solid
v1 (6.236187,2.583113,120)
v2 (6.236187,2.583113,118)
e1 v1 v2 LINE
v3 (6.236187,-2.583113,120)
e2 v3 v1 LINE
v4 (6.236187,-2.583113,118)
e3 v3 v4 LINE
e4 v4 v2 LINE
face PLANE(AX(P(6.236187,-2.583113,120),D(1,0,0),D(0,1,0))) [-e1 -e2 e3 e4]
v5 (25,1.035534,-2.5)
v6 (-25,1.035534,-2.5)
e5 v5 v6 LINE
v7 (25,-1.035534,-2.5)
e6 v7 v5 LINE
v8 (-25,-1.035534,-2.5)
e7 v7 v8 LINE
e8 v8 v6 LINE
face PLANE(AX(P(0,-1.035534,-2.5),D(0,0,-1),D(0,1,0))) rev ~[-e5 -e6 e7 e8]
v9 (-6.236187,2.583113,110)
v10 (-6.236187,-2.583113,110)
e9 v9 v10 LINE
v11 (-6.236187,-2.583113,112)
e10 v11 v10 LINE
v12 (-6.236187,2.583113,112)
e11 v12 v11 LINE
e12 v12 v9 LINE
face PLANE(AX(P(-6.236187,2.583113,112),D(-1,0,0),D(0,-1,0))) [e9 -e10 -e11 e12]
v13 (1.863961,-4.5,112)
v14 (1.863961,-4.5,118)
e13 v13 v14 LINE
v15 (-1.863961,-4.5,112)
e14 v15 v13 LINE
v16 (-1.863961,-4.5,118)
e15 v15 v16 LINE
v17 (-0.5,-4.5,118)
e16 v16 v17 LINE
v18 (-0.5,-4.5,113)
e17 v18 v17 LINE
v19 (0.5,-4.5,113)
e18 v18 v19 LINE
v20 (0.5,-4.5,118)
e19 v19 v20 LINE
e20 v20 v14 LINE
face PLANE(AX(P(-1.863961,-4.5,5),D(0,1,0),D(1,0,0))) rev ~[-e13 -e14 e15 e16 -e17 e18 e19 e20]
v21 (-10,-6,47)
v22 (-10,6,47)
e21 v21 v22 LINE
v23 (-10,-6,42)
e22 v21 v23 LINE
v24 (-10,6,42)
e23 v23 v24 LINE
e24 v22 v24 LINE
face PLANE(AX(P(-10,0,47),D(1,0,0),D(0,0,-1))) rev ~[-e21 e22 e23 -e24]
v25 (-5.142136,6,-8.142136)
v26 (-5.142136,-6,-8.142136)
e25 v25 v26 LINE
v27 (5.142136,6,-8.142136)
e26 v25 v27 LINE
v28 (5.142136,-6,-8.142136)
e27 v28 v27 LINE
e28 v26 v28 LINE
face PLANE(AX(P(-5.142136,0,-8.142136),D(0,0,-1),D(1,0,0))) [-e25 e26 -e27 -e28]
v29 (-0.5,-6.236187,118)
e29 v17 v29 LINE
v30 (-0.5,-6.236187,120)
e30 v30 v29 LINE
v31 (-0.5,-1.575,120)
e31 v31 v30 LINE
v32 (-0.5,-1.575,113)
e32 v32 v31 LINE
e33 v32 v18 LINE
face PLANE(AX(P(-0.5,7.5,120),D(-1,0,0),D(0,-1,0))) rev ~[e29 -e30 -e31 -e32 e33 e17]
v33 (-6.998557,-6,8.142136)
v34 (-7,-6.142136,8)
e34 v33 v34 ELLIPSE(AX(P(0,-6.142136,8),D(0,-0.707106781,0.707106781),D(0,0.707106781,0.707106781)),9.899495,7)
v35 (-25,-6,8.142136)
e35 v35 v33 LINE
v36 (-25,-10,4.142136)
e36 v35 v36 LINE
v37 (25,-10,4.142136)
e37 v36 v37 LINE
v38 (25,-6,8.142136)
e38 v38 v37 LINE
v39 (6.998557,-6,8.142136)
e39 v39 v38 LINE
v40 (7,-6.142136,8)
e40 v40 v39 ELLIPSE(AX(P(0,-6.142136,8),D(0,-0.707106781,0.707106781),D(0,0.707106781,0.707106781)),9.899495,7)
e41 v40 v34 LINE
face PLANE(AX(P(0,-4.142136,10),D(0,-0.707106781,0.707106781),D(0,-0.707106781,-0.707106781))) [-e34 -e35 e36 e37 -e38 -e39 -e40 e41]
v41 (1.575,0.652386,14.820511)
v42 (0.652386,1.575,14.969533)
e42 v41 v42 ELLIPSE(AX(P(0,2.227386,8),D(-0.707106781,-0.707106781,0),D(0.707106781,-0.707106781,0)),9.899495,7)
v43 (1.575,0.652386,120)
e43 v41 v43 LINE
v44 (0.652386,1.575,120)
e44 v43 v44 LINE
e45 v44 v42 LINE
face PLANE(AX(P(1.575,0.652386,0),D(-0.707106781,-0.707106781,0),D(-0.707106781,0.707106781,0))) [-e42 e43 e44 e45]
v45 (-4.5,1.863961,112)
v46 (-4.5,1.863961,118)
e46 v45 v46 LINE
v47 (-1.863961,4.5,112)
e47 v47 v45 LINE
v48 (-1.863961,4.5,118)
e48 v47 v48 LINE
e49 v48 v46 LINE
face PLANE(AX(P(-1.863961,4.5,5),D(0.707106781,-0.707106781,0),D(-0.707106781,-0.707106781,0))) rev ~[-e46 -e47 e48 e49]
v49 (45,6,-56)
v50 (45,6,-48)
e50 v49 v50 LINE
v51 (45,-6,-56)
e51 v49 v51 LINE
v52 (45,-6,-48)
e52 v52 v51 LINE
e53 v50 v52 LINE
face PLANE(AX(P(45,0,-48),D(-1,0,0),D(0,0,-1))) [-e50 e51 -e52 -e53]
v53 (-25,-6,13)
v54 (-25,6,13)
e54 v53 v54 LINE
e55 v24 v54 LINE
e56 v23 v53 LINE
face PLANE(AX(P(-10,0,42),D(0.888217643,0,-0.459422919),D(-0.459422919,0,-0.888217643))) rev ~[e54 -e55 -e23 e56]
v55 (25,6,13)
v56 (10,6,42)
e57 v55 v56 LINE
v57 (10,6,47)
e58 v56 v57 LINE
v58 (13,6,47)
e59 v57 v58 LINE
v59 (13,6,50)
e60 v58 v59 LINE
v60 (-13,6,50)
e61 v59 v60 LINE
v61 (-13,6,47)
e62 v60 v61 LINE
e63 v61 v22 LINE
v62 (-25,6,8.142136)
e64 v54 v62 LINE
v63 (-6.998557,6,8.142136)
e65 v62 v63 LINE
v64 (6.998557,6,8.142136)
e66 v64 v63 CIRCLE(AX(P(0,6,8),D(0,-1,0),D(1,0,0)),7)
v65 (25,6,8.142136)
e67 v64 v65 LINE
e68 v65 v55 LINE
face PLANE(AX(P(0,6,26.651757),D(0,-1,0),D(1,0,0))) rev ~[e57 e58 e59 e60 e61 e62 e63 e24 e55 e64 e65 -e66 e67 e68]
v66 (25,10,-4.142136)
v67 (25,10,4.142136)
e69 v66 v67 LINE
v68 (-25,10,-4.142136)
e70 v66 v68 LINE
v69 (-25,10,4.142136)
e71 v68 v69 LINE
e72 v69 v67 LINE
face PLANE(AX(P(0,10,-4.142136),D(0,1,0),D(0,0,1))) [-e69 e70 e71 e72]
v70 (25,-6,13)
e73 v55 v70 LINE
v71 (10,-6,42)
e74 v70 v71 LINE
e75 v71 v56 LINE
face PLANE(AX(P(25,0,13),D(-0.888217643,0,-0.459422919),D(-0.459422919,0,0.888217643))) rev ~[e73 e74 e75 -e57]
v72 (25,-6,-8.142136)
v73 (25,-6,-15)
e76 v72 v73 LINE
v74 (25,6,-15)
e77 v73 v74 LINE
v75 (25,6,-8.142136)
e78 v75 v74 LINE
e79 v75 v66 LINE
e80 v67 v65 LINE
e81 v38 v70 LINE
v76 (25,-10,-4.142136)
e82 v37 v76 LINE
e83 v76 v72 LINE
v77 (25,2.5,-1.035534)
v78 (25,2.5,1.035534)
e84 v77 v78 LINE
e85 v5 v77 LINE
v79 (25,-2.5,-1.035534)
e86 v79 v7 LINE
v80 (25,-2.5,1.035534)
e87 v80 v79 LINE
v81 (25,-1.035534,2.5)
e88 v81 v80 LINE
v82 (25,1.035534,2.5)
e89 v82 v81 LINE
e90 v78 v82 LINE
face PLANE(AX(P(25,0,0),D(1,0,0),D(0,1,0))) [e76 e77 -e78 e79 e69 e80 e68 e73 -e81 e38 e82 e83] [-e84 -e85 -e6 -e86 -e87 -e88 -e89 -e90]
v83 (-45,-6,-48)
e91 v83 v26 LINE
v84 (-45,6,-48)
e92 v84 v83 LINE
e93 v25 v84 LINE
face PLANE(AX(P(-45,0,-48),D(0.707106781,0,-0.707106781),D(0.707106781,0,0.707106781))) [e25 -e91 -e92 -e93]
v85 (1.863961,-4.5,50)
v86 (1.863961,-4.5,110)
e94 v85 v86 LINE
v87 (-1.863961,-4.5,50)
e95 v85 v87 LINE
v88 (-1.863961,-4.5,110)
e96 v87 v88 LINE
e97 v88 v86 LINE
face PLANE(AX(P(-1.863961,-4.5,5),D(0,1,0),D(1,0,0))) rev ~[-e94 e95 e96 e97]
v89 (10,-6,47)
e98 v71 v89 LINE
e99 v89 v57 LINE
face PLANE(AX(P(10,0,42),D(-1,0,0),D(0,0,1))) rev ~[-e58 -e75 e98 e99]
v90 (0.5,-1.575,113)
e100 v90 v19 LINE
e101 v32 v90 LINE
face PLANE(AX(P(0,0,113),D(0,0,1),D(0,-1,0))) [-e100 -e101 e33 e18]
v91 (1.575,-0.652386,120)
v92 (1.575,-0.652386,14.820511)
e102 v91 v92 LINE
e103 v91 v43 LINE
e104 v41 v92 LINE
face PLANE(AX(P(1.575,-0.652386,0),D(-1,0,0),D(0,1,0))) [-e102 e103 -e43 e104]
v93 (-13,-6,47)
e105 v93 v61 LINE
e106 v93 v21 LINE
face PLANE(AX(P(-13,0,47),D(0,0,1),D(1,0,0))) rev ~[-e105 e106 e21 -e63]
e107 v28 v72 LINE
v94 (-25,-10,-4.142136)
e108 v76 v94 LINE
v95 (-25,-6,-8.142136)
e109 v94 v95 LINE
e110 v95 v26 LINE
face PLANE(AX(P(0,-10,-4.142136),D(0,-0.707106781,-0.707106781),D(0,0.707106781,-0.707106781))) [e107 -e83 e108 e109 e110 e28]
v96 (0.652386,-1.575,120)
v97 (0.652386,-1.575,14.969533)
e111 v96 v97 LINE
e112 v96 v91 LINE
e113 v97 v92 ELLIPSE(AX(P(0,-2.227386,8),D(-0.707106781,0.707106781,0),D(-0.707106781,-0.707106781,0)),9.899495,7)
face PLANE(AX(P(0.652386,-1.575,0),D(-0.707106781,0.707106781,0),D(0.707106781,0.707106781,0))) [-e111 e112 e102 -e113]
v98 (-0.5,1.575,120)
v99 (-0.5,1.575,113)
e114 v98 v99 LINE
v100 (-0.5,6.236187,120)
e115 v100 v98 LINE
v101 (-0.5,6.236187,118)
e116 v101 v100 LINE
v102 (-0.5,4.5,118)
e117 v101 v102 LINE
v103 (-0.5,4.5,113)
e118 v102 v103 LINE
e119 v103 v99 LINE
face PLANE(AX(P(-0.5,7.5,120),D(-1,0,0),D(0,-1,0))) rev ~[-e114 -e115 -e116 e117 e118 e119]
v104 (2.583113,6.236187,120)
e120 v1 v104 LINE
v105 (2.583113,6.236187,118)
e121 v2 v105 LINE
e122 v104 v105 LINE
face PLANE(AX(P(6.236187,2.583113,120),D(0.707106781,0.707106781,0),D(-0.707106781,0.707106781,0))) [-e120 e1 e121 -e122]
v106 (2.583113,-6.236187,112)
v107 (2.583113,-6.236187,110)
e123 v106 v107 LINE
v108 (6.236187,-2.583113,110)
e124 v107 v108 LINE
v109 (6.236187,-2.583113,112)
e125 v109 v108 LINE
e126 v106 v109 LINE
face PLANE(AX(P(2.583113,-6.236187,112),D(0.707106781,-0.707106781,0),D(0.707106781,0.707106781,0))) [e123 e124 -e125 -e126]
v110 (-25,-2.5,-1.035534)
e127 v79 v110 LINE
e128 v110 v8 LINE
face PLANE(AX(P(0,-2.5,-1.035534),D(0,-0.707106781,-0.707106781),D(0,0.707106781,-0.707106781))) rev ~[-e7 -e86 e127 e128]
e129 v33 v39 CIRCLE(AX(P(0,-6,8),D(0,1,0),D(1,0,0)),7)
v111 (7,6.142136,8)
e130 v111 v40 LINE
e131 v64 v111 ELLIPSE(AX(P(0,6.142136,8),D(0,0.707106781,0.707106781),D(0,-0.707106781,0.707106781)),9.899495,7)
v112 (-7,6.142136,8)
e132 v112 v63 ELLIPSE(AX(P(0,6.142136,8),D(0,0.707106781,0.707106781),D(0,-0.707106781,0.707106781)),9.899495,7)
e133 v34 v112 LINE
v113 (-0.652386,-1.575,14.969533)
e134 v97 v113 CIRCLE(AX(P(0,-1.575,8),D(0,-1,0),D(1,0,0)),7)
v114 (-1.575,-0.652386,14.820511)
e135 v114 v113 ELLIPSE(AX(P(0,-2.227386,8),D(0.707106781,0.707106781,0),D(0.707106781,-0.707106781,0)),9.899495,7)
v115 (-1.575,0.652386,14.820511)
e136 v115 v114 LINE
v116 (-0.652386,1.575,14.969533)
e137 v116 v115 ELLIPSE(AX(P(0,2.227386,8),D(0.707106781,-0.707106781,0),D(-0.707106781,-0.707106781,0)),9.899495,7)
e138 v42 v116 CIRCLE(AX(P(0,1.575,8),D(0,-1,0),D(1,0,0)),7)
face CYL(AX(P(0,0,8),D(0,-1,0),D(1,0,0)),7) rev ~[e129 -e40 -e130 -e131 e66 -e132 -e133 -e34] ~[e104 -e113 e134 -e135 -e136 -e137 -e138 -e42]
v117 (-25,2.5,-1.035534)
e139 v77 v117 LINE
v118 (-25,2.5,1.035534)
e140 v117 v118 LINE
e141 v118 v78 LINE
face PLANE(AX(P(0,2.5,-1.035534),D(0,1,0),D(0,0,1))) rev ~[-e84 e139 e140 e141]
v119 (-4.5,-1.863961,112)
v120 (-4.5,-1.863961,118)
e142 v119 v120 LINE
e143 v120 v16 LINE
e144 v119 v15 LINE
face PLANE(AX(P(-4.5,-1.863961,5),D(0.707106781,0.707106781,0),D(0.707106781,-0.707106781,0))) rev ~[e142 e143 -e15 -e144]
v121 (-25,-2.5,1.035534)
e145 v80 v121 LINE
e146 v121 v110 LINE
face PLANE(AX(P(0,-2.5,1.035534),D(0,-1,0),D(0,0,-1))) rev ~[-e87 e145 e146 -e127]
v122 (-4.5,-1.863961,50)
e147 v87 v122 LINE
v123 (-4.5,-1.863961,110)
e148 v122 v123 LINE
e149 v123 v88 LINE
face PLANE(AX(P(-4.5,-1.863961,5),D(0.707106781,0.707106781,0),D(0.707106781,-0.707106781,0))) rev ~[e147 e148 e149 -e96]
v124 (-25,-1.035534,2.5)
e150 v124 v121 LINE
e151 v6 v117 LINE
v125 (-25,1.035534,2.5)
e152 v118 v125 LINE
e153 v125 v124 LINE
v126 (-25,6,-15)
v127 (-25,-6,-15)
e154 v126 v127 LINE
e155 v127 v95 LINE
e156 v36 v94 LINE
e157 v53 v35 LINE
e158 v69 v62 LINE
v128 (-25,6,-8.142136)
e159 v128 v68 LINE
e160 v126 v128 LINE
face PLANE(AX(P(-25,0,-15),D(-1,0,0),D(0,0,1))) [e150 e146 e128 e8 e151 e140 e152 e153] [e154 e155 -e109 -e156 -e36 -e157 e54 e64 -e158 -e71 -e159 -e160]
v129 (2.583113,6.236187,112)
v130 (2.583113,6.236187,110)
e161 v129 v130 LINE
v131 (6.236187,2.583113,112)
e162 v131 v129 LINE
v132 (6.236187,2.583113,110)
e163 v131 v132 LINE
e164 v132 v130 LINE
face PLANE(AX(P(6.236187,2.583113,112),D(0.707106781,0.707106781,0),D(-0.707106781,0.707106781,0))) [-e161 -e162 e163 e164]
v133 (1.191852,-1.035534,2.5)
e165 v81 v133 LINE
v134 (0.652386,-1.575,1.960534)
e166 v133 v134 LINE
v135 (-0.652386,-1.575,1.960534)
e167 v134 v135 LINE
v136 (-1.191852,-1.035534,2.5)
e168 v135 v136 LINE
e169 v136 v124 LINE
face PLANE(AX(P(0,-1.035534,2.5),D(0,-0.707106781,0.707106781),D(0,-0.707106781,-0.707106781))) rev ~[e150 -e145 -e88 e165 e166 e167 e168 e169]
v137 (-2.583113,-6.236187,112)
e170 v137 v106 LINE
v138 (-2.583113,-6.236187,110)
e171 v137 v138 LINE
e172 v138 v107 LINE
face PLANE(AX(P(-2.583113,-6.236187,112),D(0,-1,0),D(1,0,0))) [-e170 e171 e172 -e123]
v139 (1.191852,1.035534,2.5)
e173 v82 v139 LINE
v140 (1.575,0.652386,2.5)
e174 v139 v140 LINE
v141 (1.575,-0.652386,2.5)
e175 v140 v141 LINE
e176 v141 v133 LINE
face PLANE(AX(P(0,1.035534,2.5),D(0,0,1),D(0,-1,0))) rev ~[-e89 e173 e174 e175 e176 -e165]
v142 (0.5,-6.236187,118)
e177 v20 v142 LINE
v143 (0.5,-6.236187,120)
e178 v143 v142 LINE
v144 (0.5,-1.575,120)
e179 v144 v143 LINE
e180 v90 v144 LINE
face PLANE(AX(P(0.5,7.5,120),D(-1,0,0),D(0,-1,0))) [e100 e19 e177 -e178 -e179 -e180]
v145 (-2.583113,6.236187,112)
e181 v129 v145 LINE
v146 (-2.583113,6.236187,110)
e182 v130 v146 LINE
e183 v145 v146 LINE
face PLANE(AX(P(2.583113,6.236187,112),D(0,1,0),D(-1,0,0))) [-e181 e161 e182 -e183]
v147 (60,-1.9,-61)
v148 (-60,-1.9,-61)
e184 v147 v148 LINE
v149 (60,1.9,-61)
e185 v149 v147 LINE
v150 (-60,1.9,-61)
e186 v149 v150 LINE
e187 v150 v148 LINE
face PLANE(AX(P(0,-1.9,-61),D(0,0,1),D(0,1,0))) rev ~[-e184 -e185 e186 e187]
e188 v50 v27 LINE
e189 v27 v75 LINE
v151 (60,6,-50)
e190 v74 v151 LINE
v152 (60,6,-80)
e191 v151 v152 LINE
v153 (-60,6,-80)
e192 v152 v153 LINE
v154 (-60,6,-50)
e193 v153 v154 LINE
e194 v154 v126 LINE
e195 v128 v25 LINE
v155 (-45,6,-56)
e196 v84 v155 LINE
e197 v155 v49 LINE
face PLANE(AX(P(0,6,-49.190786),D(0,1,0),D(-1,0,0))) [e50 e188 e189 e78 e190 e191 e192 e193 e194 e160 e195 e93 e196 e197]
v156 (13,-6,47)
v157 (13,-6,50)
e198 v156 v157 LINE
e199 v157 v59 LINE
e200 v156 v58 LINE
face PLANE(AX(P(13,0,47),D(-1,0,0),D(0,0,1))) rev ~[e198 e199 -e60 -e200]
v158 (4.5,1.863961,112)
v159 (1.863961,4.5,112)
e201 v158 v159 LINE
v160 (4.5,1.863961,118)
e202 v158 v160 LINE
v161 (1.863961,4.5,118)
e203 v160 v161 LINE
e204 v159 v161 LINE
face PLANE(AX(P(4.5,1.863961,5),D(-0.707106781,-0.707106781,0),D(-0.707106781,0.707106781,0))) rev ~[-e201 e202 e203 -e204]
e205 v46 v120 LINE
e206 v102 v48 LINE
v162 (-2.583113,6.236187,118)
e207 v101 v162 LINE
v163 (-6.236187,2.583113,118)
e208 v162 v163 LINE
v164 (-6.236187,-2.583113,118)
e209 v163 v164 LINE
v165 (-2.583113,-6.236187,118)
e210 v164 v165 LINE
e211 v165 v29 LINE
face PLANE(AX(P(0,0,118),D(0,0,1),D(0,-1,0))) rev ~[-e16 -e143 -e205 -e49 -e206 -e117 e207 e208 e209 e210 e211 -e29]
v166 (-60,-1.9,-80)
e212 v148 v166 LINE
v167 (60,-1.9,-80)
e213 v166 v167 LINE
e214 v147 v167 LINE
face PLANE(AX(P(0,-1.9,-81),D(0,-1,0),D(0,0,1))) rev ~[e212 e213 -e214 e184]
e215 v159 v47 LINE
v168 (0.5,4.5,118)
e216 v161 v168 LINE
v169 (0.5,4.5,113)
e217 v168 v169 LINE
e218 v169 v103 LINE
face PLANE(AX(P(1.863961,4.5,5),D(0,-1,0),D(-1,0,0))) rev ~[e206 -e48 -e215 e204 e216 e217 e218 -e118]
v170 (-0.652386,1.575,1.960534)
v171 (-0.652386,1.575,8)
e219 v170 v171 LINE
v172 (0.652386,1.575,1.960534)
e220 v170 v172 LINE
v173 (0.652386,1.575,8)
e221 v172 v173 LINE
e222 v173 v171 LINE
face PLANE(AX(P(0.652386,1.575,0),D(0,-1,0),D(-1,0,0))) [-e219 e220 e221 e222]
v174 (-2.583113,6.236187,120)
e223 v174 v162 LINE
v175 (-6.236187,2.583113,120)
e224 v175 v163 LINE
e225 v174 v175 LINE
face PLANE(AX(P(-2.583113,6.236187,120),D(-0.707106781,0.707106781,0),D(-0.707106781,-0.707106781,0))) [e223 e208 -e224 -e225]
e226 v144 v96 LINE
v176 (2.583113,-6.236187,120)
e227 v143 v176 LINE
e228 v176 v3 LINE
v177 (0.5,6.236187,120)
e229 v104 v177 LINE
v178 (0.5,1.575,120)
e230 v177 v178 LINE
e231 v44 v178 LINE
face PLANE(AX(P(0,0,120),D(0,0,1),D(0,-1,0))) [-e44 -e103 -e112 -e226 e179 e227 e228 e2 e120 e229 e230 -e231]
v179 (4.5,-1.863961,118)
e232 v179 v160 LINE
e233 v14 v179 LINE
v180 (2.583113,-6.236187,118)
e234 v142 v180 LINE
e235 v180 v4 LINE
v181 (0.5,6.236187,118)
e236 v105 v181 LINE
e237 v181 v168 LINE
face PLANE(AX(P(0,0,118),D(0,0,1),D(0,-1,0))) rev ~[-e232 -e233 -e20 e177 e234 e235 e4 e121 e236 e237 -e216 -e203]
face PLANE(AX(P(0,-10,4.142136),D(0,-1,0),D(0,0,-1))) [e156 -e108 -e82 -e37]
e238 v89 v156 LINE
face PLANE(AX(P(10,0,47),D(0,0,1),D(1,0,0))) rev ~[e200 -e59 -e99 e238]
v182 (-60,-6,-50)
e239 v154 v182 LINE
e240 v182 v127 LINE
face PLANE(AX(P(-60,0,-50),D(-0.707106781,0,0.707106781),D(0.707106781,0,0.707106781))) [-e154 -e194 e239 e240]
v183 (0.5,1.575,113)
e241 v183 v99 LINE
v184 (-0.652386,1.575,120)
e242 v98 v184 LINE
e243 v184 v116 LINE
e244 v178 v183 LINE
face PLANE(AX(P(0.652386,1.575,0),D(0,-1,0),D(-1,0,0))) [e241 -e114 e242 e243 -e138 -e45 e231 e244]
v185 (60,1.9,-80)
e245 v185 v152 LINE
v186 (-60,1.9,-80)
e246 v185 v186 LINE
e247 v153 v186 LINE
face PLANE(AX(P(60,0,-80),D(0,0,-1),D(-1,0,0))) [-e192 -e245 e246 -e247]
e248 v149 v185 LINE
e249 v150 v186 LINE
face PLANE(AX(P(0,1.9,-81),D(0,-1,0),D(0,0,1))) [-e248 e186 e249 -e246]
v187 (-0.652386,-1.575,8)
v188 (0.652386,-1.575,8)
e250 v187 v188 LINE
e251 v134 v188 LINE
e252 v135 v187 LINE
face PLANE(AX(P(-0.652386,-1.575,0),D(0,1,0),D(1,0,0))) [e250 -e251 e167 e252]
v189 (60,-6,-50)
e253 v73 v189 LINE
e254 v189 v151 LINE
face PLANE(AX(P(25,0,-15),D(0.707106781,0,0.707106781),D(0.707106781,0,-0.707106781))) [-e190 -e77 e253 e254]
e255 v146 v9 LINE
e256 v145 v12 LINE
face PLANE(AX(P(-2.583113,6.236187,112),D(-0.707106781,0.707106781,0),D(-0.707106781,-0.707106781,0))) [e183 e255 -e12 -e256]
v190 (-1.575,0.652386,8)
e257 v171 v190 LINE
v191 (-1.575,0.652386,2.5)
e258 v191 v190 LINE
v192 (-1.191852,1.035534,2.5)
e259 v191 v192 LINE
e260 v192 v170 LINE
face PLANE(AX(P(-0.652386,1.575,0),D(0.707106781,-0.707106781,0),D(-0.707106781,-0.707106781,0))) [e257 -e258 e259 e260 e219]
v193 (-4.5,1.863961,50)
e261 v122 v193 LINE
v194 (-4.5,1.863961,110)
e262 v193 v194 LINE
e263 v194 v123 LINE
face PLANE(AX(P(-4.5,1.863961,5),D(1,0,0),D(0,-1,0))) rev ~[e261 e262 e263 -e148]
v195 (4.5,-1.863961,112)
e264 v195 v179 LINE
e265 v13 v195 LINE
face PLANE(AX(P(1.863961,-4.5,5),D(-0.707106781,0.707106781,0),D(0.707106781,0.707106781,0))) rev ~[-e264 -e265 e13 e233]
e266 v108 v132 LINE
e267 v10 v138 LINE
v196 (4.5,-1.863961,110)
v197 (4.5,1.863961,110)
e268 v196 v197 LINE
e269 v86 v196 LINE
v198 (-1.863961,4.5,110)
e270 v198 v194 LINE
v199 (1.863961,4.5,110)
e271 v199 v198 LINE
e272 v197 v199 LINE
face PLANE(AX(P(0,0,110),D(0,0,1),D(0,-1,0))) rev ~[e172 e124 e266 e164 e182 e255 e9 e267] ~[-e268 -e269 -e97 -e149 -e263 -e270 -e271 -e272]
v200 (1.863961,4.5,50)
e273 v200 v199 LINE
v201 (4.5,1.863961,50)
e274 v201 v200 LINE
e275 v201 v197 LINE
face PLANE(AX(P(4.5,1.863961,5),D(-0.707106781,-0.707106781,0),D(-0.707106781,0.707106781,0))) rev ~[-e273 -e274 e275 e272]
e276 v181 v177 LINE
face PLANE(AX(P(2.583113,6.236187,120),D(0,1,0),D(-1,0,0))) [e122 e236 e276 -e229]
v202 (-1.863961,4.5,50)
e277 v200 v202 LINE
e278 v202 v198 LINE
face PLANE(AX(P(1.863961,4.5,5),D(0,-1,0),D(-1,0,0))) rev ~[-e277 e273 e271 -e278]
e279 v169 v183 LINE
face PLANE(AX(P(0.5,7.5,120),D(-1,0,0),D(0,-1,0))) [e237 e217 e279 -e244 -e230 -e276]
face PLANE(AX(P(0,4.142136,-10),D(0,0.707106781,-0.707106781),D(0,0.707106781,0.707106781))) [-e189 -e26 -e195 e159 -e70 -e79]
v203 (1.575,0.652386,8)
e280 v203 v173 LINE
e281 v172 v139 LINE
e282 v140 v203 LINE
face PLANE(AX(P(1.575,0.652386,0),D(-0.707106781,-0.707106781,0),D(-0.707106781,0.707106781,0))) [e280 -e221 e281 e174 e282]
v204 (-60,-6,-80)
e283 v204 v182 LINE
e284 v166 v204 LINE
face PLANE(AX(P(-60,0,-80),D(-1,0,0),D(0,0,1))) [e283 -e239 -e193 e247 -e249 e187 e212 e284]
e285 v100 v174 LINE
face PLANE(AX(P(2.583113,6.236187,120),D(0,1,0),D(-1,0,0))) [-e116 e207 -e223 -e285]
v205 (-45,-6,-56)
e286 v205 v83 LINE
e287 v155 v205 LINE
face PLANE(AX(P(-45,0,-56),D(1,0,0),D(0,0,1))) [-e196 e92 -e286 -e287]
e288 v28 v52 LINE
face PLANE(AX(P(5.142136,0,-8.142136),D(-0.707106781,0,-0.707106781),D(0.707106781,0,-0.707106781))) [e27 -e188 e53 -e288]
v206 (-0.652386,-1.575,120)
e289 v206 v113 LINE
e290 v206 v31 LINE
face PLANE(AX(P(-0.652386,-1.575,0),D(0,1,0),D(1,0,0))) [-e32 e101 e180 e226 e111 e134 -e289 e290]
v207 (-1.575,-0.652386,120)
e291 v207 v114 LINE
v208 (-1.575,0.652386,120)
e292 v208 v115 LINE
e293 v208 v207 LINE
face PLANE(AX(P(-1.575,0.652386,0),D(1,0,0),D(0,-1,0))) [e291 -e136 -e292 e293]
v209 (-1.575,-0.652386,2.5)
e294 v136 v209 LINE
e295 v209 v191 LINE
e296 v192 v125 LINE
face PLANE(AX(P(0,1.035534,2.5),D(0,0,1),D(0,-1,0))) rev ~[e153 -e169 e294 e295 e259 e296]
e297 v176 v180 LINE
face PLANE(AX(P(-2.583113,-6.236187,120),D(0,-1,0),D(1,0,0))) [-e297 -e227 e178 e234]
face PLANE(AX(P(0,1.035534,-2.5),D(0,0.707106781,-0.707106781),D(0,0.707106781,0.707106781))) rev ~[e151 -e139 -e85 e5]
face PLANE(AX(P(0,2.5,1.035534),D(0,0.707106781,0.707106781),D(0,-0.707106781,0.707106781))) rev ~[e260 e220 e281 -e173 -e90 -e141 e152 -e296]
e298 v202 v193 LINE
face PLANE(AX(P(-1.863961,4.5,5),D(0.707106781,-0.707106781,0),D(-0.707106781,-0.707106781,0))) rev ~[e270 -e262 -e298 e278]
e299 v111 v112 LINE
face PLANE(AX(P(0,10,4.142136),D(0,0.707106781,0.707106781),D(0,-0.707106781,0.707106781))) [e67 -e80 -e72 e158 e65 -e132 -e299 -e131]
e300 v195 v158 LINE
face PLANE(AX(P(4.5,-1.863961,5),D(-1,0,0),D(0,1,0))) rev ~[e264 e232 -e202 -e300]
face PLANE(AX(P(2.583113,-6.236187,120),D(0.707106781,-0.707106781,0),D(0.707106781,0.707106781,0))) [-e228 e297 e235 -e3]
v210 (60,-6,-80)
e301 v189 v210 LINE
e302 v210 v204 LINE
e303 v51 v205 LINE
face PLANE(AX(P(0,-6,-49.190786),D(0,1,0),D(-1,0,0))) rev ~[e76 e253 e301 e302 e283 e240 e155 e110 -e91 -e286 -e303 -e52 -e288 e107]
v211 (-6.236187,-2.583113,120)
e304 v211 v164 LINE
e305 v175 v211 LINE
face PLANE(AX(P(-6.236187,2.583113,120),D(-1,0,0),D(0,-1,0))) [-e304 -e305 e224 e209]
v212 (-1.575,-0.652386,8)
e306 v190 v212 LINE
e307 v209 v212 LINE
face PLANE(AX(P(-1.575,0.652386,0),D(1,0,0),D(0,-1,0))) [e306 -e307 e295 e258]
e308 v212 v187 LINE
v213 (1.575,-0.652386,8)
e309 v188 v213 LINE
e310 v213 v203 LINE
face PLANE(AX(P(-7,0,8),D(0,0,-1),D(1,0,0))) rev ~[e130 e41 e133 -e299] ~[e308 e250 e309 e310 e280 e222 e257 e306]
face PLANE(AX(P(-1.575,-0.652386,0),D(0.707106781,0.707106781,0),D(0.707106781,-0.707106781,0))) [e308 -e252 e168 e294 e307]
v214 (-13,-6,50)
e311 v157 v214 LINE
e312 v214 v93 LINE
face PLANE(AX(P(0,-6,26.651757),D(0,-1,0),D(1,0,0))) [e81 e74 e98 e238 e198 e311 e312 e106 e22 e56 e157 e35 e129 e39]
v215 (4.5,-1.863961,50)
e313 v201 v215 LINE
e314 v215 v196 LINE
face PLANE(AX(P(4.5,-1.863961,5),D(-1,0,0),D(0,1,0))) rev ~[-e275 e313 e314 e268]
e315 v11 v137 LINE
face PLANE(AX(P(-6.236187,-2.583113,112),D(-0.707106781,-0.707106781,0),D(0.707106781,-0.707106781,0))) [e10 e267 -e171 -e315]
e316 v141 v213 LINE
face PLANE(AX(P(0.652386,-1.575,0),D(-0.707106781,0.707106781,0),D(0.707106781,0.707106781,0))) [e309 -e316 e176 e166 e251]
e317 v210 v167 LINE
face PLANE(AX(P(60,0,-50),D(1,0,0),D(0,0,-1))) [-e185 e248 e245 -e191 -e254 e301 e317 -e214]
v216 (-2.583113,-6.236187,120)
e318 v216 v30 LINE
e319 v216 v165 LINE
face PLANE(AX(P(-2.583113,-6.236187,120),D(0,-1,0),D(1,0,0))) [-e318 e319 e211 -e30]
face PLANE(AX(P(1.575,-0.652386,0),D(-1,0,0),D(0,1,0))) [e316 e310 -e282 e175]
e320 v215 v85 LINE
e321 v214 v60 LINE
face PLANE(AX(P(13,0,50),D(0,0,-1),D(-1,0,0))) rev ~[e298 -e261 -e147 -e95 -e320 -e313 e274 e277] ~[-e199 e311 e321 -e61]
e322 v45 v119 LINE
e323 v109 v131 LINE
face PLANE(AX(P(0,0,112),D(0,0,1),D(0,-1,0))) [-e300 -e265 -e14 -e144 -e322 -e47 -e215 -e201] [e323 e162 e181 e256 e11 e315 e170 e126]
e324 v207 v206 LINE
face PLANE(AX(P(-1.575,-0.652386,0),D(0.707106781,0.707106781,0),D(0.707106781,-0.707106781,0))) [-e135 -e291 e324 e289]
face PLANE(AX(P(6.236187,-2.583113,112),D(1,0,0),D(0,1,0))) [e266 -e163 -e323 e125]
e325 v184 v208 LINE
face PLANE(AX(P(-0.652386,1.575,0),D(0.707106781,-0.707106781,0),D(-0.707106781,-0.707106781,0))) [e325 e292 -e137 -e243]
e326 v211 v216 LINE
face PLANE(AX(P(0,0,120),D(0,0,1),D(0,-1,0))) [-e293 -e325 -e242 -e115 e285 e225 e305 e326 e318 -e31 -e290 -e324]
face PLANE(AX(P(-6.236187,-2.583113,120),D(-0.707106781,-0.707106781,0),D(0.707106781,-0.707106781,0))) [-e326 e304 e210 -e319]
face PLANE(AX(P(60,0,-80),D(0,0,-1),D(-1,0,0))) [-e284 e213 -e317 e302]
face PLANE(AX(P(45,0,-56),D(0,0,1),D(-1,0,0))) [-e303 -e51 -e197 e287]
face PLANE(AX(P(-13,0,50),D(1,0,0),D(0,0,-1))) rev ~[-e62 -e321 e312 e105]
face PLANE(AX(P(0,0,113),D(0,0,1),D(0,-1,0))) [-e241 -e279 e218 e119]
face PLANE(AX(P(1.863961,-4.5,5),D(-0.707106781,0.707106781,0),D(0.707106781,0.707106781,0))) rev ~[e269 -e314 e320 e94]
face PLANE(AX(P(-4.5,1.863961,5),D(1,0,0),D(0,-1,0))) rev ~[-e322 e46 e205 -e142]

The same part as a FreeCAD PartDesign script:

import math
import FreeCAD as App
import Part
import Sketcher

V = App.Vector
Q = App.Units.Quantity

doc = App.newDocument("Part")
body = doc.addObject("PartDesign::Body", "Body")

# Sketch on YZ plane
sketch1 = body.newObject("Sketcher::SketchObject", "Sketch")
sketch1.AttachmentSupport = (doc.getObject("YZ_Plane"), [""])
sketch1.MapMode = "FlatFace"
sketch1.addGeometry([
    Part.LineSegment(V(10, -4.1, 0), V(10, 4.1, 0)),  # 0
    Part.LineSegment(V(10, 4.1, 0), V(4.1, 10, 0)),  # 1
    Part.LineSegment(V(4.1, 10, 0), V(-4.1, 10, 0)),  # 2
    Part.LineSegment(V(-4.1, 10, 0), V(-10, 4.1, 0)),  # 3
    Part.LineSegment(V(-10, 4.1, 0), V(-10, -4.1, 0)),  # 4
    Part.LineSegment(V(-10, -4.1, 0), V(-4.1, -10, 0)),  # 5
    Part.LineSegment(V(-4.1, -10, 0), V(4.1, -10, 0)),  # 6
    Part.LineSegment(V(4.1, -10, 0), V(10, -4.1, 0)),  # 7
    Part.LineSegment(V(1, 2.5, 0), V(2.5, 1, 0)),  # 8
    Part.LineSegment(V(2.5, 1, 0), V(2.5, -1, 0)),  # 9
    Part.LineSegment(V(2.5, -1, 0), V(1, -2.5, 0)),  # 10
    Part.LineSegment(V(1, -2.5, 0), V(-1, -2.5, 0)),  # 11
    Part.LineSegment(V(-1, -2.5, 0), V(-2.5, -1, 0)),  # 12
    Part.LineSegment(V(-2.5, -1, 0), V(-2.5, 1, 0)),  # 13
    Part.LineSegment(V(-2.5, 1, 0), V(-1, 2.5, 0)),  # 14
    Part.LineSegment(V(-1, 2.5, 0), V(1, 2.5, 0)),  # 15
], False)
sketch1.addConstraint([
    Sketcher.Constraint("Coincident", 0, 2, 1, 1),
    Sketcher.Constraint("Coincident", 1, 2, 2, 1),
    Sketcher.Constraint("Coincident", 2, 2, 3, 1),
    Sketcher.Constraint("Coincident", 3, 2, 4, 1),
    Sketcher.Constraint("Coincident", 4, 2, 5, 1),
    Sketcher.Constraint("Coincident", 5, 2, 6, 1),
    Sketcher.Constraint("Coincident", 6, 2, 7, 1),
    Sketcher.Constraint("Coincident", 7, 2, 0, 1),
    Sketcher.Constraint("Coincident", 8, 2, 9, 1),
    Sketcher.Constraint("Coincident", 9, 2, 10, 1),
    Sketcher.Constraint("Coincident", 10, 2, 11, 1),
    Sketcher.Constraint("Coincident", 11, 2, 12, 1),
    Sketcher.Constraint("Coincident", 12, 2, 13, 1),
    Sketcher.Constraint("Coincident", 13, 2, 14, 1),
    Sketcher.Constraint("Coincident", 14, 2, 15, 1),
    Sketcher.Constraint("Coincident", 15, 2, 8, 1),
    Sketcher.Constraint("Vertical", 0),
    Sketcher.Constraint("Horizontal", 2),
    Sketcher.Constraint("Vertical", 4),
    Sketcher.Constraint("Horizontal", 6),
    Sketcher.Constraint("Vertical", 9),
    Sketcher.Constraint("Horizontal", 11),
    Sketcher.Constraint("Vertical", 13),
    Sketcher.Constraint("Horizontal", 15),
    Sketcher.Constraint("Symmetric", 0, 2, 4, 2, -1, 1),
    Sketcher.Constraint("Symmetric", 1, 2, 5, 2, -1, 1),
    Sketcher.Constraint("Symmetric", 8, 2, 12, 2, -1, 1),
    Sketcher.Constraint("Symmetric", 10, 2, 14, 2, -1, 1),
    Sketcher.Constraint("Perpendicular", 1, 3),
    Sketcher.Constraint("Perpendicular", 5, 7),
    Sketcher.Constraint("Perpendicular", 7, 8),
    Sketcher.Constraint("Perpendicular", 8, 10),
    Sketcher.Constraint("Perpendicular", 10, 12),
    Sketcher.Constraint("Perpendicular", 12, 14),
    Sketcher.Constraint("Horizontal", 0, 2, 3, 2),
    Sketcher.Constraint("Horizontal", 4, 2, 7, 2),
    Sketcher.Constraint("Horizontal", 9, 2, 12, 2),
    Sketcher.Constraint("Vertical", 2, 2, 5, 2),
    Sketcher.Constraint("Equal", 6, 0),
    Sketcher.Constraint("Equal", 15, 9),
    Sketcher.Constraint("DistanceX", -1, 1, 0, 2, Q("10 mm")),
    Sketcher.Constraint("DistanceX", 12, 2, 9, 2, Q("5 mm")),
    Sketcher.Constraint("DistanceY", 8, 2, 0, 2, Q("3.106602 mm")),
    Sketcher.Constraint("Distance", 1, Q("8.284271 mm")),
])
pad1 = body.newObject("PartDesign::Pad", "Pad")
pad1.Profile = sketch1
pad1.Type = "TwoLengths"
pad1.Length = 25
pad1.Length2 = 25

# Sketch on XY plane
sketch2 = body.newObject("Sketcher::SketchObject", "Sketch001")
sketch2.AttachmentSupport = (doc.getObject("XY_Plane"), [""])
sketch2.MapMode = "FlatFace"
sketch2.AttachmentOffset = App.Placement(V(0, 0, 5), App.Rotation())
sketch2.addGeometry([
    Part.LineSegment(V(4.5, -1.9, 0), V(4.5, 1.9, 0)),  # 0
    Part.LineSegment(V(4.5, 1.9, 0), V(1.9, 4.5, 0)),  # 1
    Part.LineSegment(V(1.9, 4.5, 0), V(-1.9, 4.5, 0)),  # 2
    Part.LineSegment(V(-1.9, 4.5, 0), V(-4.5, 1.9, 0)),  # 3
    Part.LineSegment(V(-4.5, 1.9, 0), V(-4.5, -1.9, 0)),  # 4
    Part.LineSegment(V(-4.5, -1.9, 0), V(-1.9, -4.5, 0)),  # 5
    Part.LineSegment(V(-1.9, -4.5, 0), V(1.9, -4.5, 0)),  # 6
    Part.LineSegment(V(1.9, -4.5, 0), V(4.5, -1.9, 0)),  # 7
    Part.LineSegment(V(1.6, 0.7, 0), V(1.6, -0.7, 0)),  # 8
    Part.LineSegment(V(1.6, -0.7, 0), V(0.7, -1.6, 0)),  # 9
    Part.LineSegment(V(0.7, -1.6, 0), V(-0.7, -1.6, 0)),  # 10
    Part.LineSegment(V(-0.7, -1.6, 0), V(-1.6, -0.7, 0)),  # 11
    Part.LineSegment(V(-1.6, -0.7, 0), V(-1.6, 0.7, 0)),  # 12
    Part.LineSegment(V(-1.6, 0.7, 0), V(-0.7, 1.6, 0)),  # 13
    Part.LineSegment(V(-0.7, 1.6, 0), V(0.7, 1.6, 0)),  # 14
    Part.LineSegment(V(0.7, 1.6, 0), V(1.6, 0.7, 0)),  # 15
], False)
sketch2.addConstraint([
    Sketcher.Constraint("Coincident", 0, 2, 1, 1),
    Sketcher.Constraint("Coincident", 1, 2, 2, 1),
    Sketcher.Constraint("Coincident", 2, 2, 3, 1),
    Sketcher.Constraint("Coincident", 3, 2, 4, 1),
    Sketcher.Constraint("Coincident", 4, 2, 5, 1),
    Sketcher.Constraint("Coincident", 5, 2, 6, 1),
    Sketcher.Constraint("Coincident", 6, 2, 7, 1),
    Sketcher.Constraint("Coincident", 7, 2, 0, 1),
    Sketcher.Constraint("Coincident", 8, 2, 9, 1),
    Sketcher.Constraint("Coincident", 9, 2, 10, 1),
    Sketcher.Constraint("Coincident", 10, 2, 11, 1),
    Sketcher.Constraint("Coincident", 11, 2, 12, 1),
    Sketcher.Constraint("Coincident", 12, 2, 13, 1),
    Sketcher.Constraint("Coincident", 13, 2, 14, 1),
    Sketcher.Constraint("Coincident", 14, 2, 15, 1),
    Sketcher.Constraint("Coincident", 15, 2, 8, 1),
    Sketcher.Constraint("Vertical", 0),
    Sketcher.Constraint("Horizontal", 2),
    Sketcher.Constraint("Vertical", 4),
    Sketcher.Constraint("Horizontal", 6),
    Sketcher.Constraint("Vertical", 8),
    Sketcher.Constraint("Horizontal", 10),
    Sketcher.Constraint("Vertical", 12),
    Sketcher.Constraint("Horizontal", 14),
    Sketcher.Constraint("Symmetric", 0, 2, 4, 2, -1, 1),
    Sketcher.Constraint("Symmetric", 1, 2, 5, 2, -1, 1),
    Sketcher.Constraint("Symmetric", 8, 2, 12, 2, -1, 1),
    Sketcher.Constraint("Symmetric", 9, 2, 13, 2, -1, 1),
    Sketcher.Constraint("Perpendicular", 1, 3),
    Sketcher.Constraint("Perpendicular", 5, 7),
    Sketcher.Constraint("Parallel", 7, 9),
    Sketcher.Constraint("Perpendicular", 9, 11),
    Sketcher.Constraint("Perpendicular", 13, 15),
    Sketcher.Constraint("Horizontal", 0, 2, 3, 2),
    Sketcher.Constraint("Horizontal", 4, 2, 7, 2),
    Sketcher.Constraint("Horizontal", 8, 2, 11, 2),
    Sketcher.Constraint("Horizontal", 12, 2, 15, 2),
    Sketcher.Constraint("Vertical", 2, 2, 5, 2),
    Sketcher.Constraint("Equal", 6, 0),
    Sketcher.Constraint("Equal", 14, 8),
    Sketcher.Constraint("DistanceX", 3, 2, 0, 2, Q("9 mm")),
    Sketcher.Constraint("DistanceX", 11, 2, 8, 2, Q("3.15 mm")),
    Sketcher.Constraint("DistanceX", 2, 2, 2, 1, Q("3.727922 mm")),
    Sketcher.Constraint("DistanceX", 10, 2, 10, 1, Q("1.304772 mm")),
])
pad2 = body.newObject("PartDesign::Pad", "Pad001")
pad2.Profile = sketch2
pad2.Length = 115

# Sketch on XZ plane
sketch3 = body.newObject("Sketcher::SketchObject", "Sketch002")
sketch3.AttachmentSupport = (doc.getObject("XZ_Plane"), [""])
sketch3.MapMode = "FlatFace"
sketch3.addGeometry([
    Part.LineSegment(V(-25, 8, 0), V(25, 8, 0)),  # 0
    Part.LineSegment(V(25, 8, 0), V(25, 13, 0)),  # 1
    Part.LineSegment(V(25, 13, 0), V(10, 42, 0)),  # 2
    Part.LineSegment(V(10, 42, 0), V(10, 47, 0)),  # 3
    Part.LineSegment(V(10, 47, 0), V(13, 47, 0)),  # 4
    Part.LineSegment(V(13, 47, 0), V(13, 50, 0)),  # 5
    Part.LineSegment(V(13, 50, 0), V(-13, 50, 0)),  # 6
    Part.LineSegment(V(-13, 50, 0), V(-13, 47, 0)),  # 7
    Part.LineSegment(V(-13, 47, 0), V(-10, 47, 0)),  # 8
    Part.LineSegment(V(-10, 47, 0), V(-10, 42, 0)),  # 9
    Part.LineSegment(V(-10, 42, 0), V(-25, 13, 0)),  # 10
    Part.LineSegment(V(-25, 13, 0), V(-25, 8, 0)),  # 11
], False)
sketch3.addConstraint([
    Sketcher.Constraint("Coincident", 0, 2, 1, 1),
    Sketcher.Constraint("Coincident", 1, 2, 2, 1),
    Sketcher.Constraint("Coincident", 2, 2, 3, 1),
    Sketcher.Constraint("Coincident", 3, 2, 4, 1),
    Sketcher.Constraint("Coincident", 4, 2, 5, 1),
    Sketcher.Constraint("Coincident", 5, 2, 6, 1),
    Sketcher.Constraint("Coincident", 6, 2, 7, 1),
    Sketcher.Constraint("Coincident", 7, 2, 8, 1),
    Sketcher.Constraint("Coincident", 8, 2, 9, 1),
    Sketcher.Constraint("Coincident", 9, 2, 10, 1),
    Sketcher.Constraint("Coincident", 10, 2, 11, 1),
    Sketcher.Constraint("Coincident", 11, 2, 0, 1),
    Sketcher.Constraint("Horizontal", 0),
    Sketcher.Constraint("Vertical", 1),
    Sketcher.Constraint("Vertical", 3),
    Sketcher.Constraint("Horizontal", 4),
    Sketcher.Constraint("Vertical", 5),
    Sketcher.Constraint("Horizontal", 6),
    Sketcher.Constraint("Vertical", 7),
    Sketcher.Constraint("Horizontal", 8),
    Sketcher.Constraint("Vertical", 9),
    Sketcher.Constraint("Vertical", 11),
    Sketcher.Constraint("Symmetric", 4, 2, 7, 2, -2),
    Sketcher.Constraint("Symmetric", 2, 2, 9, 2, -2),
    Sketcher.Constraint("Symmetric", 1, 2, 10, 2, -2),
    Sketcher.Constraint("Equal", 1, 3),
    Sketcher.Constraint("Equal", 8, 5),
    Sketcher.Constraint("DistanceX", 0, 1, 0, 2, Q("50 mm")),
    Sketcher.Constraint("DistanceX", 4, 1, 4, 2, Q("3 mm")),
    Sketcher.Constraint("DistanceX", 6, 2, 6, 1, Q("26 mm")),
    Sketcher.Constraint("DistanceY", 1, 1, 1, 2, Q("5 mm")),
    Sketcher.Constraint("DistanceY", -1, 1, 0, 2, Q("8 mm")),
    Sketcher.Constraint("DistanceY", -1, 1, 2, 2, Q("42 mm")),
])
pad3 = body.newObject("PartDesign::Pad", "Pad002")
pad3.Profile = sketch3
pad3.Type = "TwoLengths"
pad3.Length = 6
pad3.Length2 = 6

# Sketch on XZ plane
sketch4 = body.newObject("Sketcher::SketchObject", "Sketch003")
sketch4.AttachmentSupport = (doc.getObject("XZ_Plane"), [""])
sketch4.MapMode = "FlatFace"
sketch4.addGeometry([
    Part.ArcOfCircle(Part.Circle(V(0, 8, 0), V(0, 0, 1), 7), math.radians(0), math.radians(180)),
    Part.LineSegment(V(-7, 8, 0), V(7, 8, 0)),
], False)
sketch4.addConstraint([
    Sketcher.Constraint("Coincident", 0, 1, 1, 2),
    Sketcher.Constraint("Coincident", 1, 1, 0, 2),
    Sketcher.Constraint("Horizontal", 1),
    Sketcher.Constraint("PointOnObject", 0, 3, -2),
    Sketcher.Constraint("Radius", 0, Q("7 mm")),
    Sketcher.Constraint("DistanceY", -1, 1, 0, 3, Q("8 mm")),
    Sketcher.Constraint("DistanceY", -1, 1, 0, 1, Q("8 mm")),
])
pocket1 = body.newObject("PartDesign::Pocket", "Pocket")
pocket1.Profile = sketch4
pocket1.Type = "ThroughAll"
pocket1.Midplane = True

# Sketch on XY plane
sketch5 = body.newObject("Sketcher::SketchObject", "Sketch004")
sketch5.AttachmentSupport = (doc.getObject("XY_Plane"), [""])
sketch5.MapMode = "FlatFace"
sketch5.addGeometry([
    Part.LineSegment(V(1.6, -0.7, 0), V(1.6, 0.7, 0)),  # 0
    Part.LineSegment(V(1.6, 0.7, 0), V(0.7, 1.6, 0)),  # 1
    Part.LineSegment(V(0.7, 1.6, 0), V(-0.7, 1.6, 0)),  # 2
    Part.LineSegment(V(-0.7, 1.6, 0), V(-1.6, 0.7, 0)),  # 3
    Part.LineSegment(V(-1.6, 0.7, 0), V(-1.6, -0.7, 0)),  # 4
    Part.LineSegment(V(-1.6, -0.7, 0), V(-0.7, -1.6, 0)),  # 5
    Part.LineSegment(V(-0.7, -1.6, 0), V(0.7, -1.6, 0)),  # 6
    Part.LineSegment(V(0.7, -1.6, 0), V(1.6, -0.7, 0)),  # 7
], False)
sketch5.addConstraint([
    Sketcher.Constraint("Coincident", 0, 2, 1, 1),
    Sketcher.Constraint("Coincident", 1, 2, 2, 1),
    Sketcher.Constraint("Coincident", 2, 2, 3, 1),
    Sketcher.Constraint("Coincident", 3, 2, 4, 1),
    Sketcher.Constraint("Coincident", 4, 2, 5, 1),
    Sketcher.Constraint("Coincident", 5, 2, 6, 1),
    Sketcher.Constraint("Coincident", 6, 2, 7, 1),
    Sketcher.Constraint("Coincident", 7, 2, 0, 1),
    Sketcher.Constraint("Vertical", 0),
    Sketcher.Constraint("Horizontal", 2),
    Sketcher.Constraint("Vertical", 4),
    Sketcher.Constraint("Horizontal", 6),
    Sketcher.Constraint("Symmetric", 0, 2, 4, 2, -1, 1),
    Sketcher.Constraint("Symmetric", 1, 2, 5, 2, -1, 1),
    Sketcher.Constraint("Perpendicular", 1, 3),
    Sketcher.Constraint("Perpendicular", 5, 7),
    Sketcher.Constraint("Horizontal", 0, 2, 3, 2),
    Sketcher.Constraint("Horizontal", 4, 2, 7, 2),
    Sketcher.Constraint("Vertical", 2, 2, 5, 2),
    Sketcher.Constraint("Equal", 6, 0),
    Sketcher.Constraint("DistanceX", 3, 2, 0, 2, Q("3.15 mm")),
    Sketcher.Constraint("DistanceX", 2, 2, 2, 1, Q("1.304772 mm")),
])
pocket2 = body.newObject("PartDesign::Pocket", "Pocket001")
pocket2.Profile = sketch5
pocket2.Type = "ThroughAll"
pocket2.Reversed = True

# Sketch on XY plane
sketch6 = body.newObject("Sketcher::SketchObject", "Sketch005")
sketch6.AttachmentSupport = (doc.getObject("XY_Plane"), [""])
sketch6.MapMode = "FlatFace"
sketch6.AttachmentOffset = App.Placement(V(0, 0, 120), App.Rotation())
sketch6.addGeometry([
    Part.LineSegment(V(-2.6, -6.2, 0), V(2.6, -6.2, 0)),  # 0
    Part.LineSegment(V(2.6, -6.2, 0), V(6.2, -2.6, 0)),  # 1
    Part.LineSegment(V(6.2, -2.6, 0), V(6.2, 2.6, 0)),  # 2
    Part.LineSegment(V(6.2, 2.6, 0), V(2.6, 6.2, 0)),  # 3
    Part.LineSegment(V(2.6, 6.2, 0), V(-2.6, 6.2, 0)),  # 4
    Part.LineSegment(V(-2.6, 6.2, 0), V(-6.2, 2.6, 0)),  # 5
    Part.LineSegment(V(-6.2, 2.6, 0), V(-6.2, -2.6, 0)),  # 6
    Part.LineSegment(V(-6.2, -2.6, 0), V(-2.6, -6.2, 0)),  # 7
    Part.LineSegment(V(-1.3, -3.2, 0), V(-3.2, -1.3, 0)),  # 8
    Part.LineSegment(V(-3.2, -1.3, 0), V(-3.2, 1.3, 0)),  # 9
    Part.LineSegment(V(-3.2, 1.3, 0), V(-1.3, 3.2, 0)),  # 10
    Part.LineSegment(V(-1.3, 3.2, 0), V(1.3, 3.2, 0)),  # 11
    Part.LineSegment(V(1.3, 3.2, 0), V(3.2, 1.3, 0)),  # 12
    Part.LineSegment(V(3.2, 1.3, 0), V(3.2, -1.3, 0)),  # 13
    Part.LineSegment(V(3.2, -1.3, 0), V(1.3, -3.2, 0)),  # 14
    Part.LineSegment(V(1.3, -3.2, 0), V(-1.3, -3.2, 0)),  # 15
], False)
sketch6.addConstraint([
    Sketcher.Constraint("Coincident", 0, 2, 1, 1),
    Sketcher.Constraint("Coincident", 1, 2, 2, 1),
    Sketcher.Constraint("Coincident", 2, 2, 3, 1),
    Sketcher.Constraint("Coincident", 3, 2, 4, 1),
    Sketcher.Constraint("Coincident", 4, 2, 5, 1),
    Sketcher.Constraint("Coincident", 5, 2, 6, 1),
    Sketcher.Constraint("Coincident", 6, 2, 7, 1),
    Sketcher.Constraint("Coincident", 7, 2, 0, 1),
    Sketcher.Constraint("Coincident", 8, 2, 9, 1),
    Sketcher.Constraint("Coincident", 9, 2, 10, 1),
    Sketcher.Constraint("Coincident", 10, 2, 11, 1),
    Sketcher.Constraint("Coincident", 11, 2, 12, 1),
    Sketcher.Constraint("Coincident", 12, 2, 13, 1),
    Sketcher.Constraint("Coincident", 13, 2, 14, 1),
    Sketcher.Constraint("Coincident", 14, 2, 15, 1),
    Sketcher.Constraint("Coincident", 15, 2, 8, 1),
    Sketcher.Constraint("Horizontal", 0),
    Sketcher.Constraint("Vertical", 2),
    Sketcher.Constraint("Horizontal", 4),
    Sketcher.Constraint("Vertical", 6),
    Sketcher.Constraint("Vertical", 9),
    Sketcher.Constraint("Horizontal", 11),
    Sketcher.Constraint("Vertical", 13),
    Sketcher.Constraint("Horizontal", 15),
    Sketcher.Constraint("Symmetric", 0, 2, 4, 2, -1, 1),
    Sketcher.Constraint("Symmetric", 1, 2, 5, 2, -1, 1),
    Sketcher.Constraint("Symmetric", 8, 2, 12, 2, -1, 1),
    Sketcher.Constraint("Symmetric", 10, 2, 14, 2, -1, 1),
    Sketcher.Constraint("Perpendicular", 1, 3),
    Sketcher.Constraint("Perpendicular", 5, 7),
    Sketcher.Constraint("Parallel", 7, 8),
    Sketcher.Constraint("Perpendicular", 8, 10),
    Sketcher.Constraint("Perpendicular", 10, 12),
    Sketcher.Constraint("Perpendicular", 12, 14),
    Sketcher.Constraint("Horizontal", 2, 2, 5, 2),
    Sketcher.Constraint("Horizontal", 1, 2, 6, 2),
    Sketcher.Constraint("Horizontal", 9, 2, 12, 2),
    Sketcher.Constraint("Vertical", 0, 2, 3, 2),
    Sketcher.Constraint("Equal", 4, 2),
    Sketcher.Constraint("Equal", 15, 9),
    Sketcher.Constraint("DistanceY", 0, 2, 2, 2, Q("8.8193 mm")),
    Sketcher.Constraint("DistanceX", 0, 1, 0, 2, Q("5.166226 mm")),
    Sketcher.Constraint("DistanceX", 11, 1, 11, 2, Q("2.678784 mm")),
    Sketcher.Constraint("DistanceX", 8, 2, -1, 1, Q("3.233578 mm")),
])
pad4 = body.newObject("PartDesign::Pad", "Pad003")
pad4.Profile = sketch6
pad4.Length = 2
pad4.Reversed = True
doc.recompute()

linearpattern = body.newObject("PartDesign::LinearPattern", "LinearPattern")
linearpattern.Originals = [pad4]
linearpattern.Direction = (doc.getObject("Z_Axis"), [""])
linearpattern.Mode = "offset"
linearpattern.Offset = 8
linearpattern.Occurrences = 2
linearpattern.Reversed = True
body.Tip = linearpattern

# Sketch on XY plane
sketch7 = body.newObject("Sketcher::SketchObject", "Sketch006")
sketch7.AttachmentSupport = (doc.getObject("XY_Plane"), [""])
sketch7.MapMode = "FlatFace"
sketch7.AttachmentOffset = App.Placement(V(0, 0, 120), App.Rotation())
sketch7.addGeometry([
    Part.LineSegment(V(0.5, 7.5, 0), V(-0.5, 7.5, 0)),
    Part.LineSegment(V(-0.5, 7.5, 0), V(-0.5, -7.5, 0)),
    Part.LineSegment(V(-0.5, -7.5, 0), V(0.5, -7.5, 0)),
    Part.LineSegment(V(0.5, -7.5, 0), V(0.5, 7.5, 0)),
], False)
sketch7.addConstraint([
    Sketcher.Constraint("Coincident", 0, 2, 1, 1),
    Sketcher.Constraint("Coincident", 1, 2, 2, 1),
    Sketcher.Constraint("Coincident", 2, 2, 3, 1),
    Sketcher.Constraint("Coincident", 3, 2, 0, 1),
    Sketcher.Constraint("Horizontal", 0),
    Sketcher.Constraint("Vertical", 1),
    Sketcher.Constraint("Horizontal", 2),
    Sketcher.Constraint("Vertical", 3),
    Sketcher.Constraint("Symmetric", 0, 2, 2, 2, -1, 1),
    Sketcher.Constraint("DistanceX", 0, 2, 0, 1, Q("1 mm")),
    Sketcher.Constraint("DistanceY", 1, 2, 1, 1, Q("15 mm")),
])
pocket3 = body.newObject("PartDesign::Pocket", "Pocket002")
pocket3.Profile = sketch7
pocket3.Length = 7

# Sketch on XZ plane
sketch8 = body.newObject("Sketcher::SketchObject", "Sketch007")
sketch8.AttachmentSupport = (doc.getObject("XZ_Plane"), [""])
sketch8.MapMode = "FlatFace"
sketch8.addGeometry([
    Part.LineSegment(V(25, -5, 0), V(-25, -5, 0)),  # 0
    Part.LineSegment(V(-25, -5, 0), V(-25, -15, 0)),  # 1
    Part.LineSegment(V(-25, -15, 0), V(-60, -50, 0)),  # 2
    Part.LineSegment(V(-60, -50, 0), V(-60, -80, 0)),  # 3
    Part.LineSegment(V(-60, -80, 0), V(60, -80, 0)),  # 4
    Part.LineSegment(V(60, -80, 0), V(60, -50, 0)),  # 5
    Part.LineSegment(V(60, -50, 0), V(25, -15, 0)),  # 6
    Part.LineSegment(V(25, -15, 0), V(25, -5, 0)),  # 7
], False)
sketch8.addConstraint([
    Sketcher.Constraint("Coincident", 0, 2, 1, 1),
    Sketcher.Constraint("Coincident", 1, 2, 2, 1),
    Sketcher.Constraint("Coincident", 2, 2, 3, 1),
    Sketcher.Constraint("Coincident", 3, 2, 4, 1),
    Sketcher.Constraint("Coincident", 4, 2, 5, 1),
    Sketcher.Constraint("Coincident", 5, 2, 6, 1),
    Sketcher.Constraint("Coincident", 6, 2, 7, 1),
    Sketcher.Constraint("Coincident", 7, 2, 0, 1),
    Sketcher.Constraint("Horizontal", 0),
    Sketcher.Constraint("Vertical", 1),
    Sketcher.Constraint("Vertical", 3),
    Sketcher.Constraint("Horizontal", 4),
    Sketcher.Constraint("Vertical", 5),
    Sketcher.Constraint("Vertical", 7),
    Sketcher.Constraint("Symmetric", 2, 2, 5, 2, -2),
    Sketcher.Constraint("Symmetric", 1, 2, 6, 2, -2),
    Sketcher.Constraint("Perpendicular", 2, 6),
    Sketcher.Constraint("DistanceX", 0, 2, 0, 1, Q("50 mm")),
    Sketcher.Constraint("DistanceX", 4, 1, 4, 2, Q("120 mm")),
    Sketcher.Constraint("DistanceY", 1, 2, 1, 1, Q("10 mm")),
    Sketcher.Constraint("DistanceY", 3, 2, 3, 1, Q("30 mm")),
    Sketcher.Constraint("DistanceY", 0, 2, -1, 1, Q("5 mm")),
])
pad5 = body.newObject("PartDesign::Pad", "Pad004")
pad5.Profile = sketch8
pad5.Type = "TwoLengths"
pad5.Length = 6
pad5.Length2 = 6

# Sketch on YZ plane
sketch9 = body.newObject("Sketcher::SketchObject", "Sketch008")
sketch9.AttachmentSupport = (doc.getObject("YZ_Plane"), [""])
sketch9.MapMode = "FlatFace"
sketch9.addGeometry([
    Part.LineSegment(V(-1.9, -61, 0), V(-1.9, -81, 0)),
    Part.LineSegment(V(-1.9, -81, 0), V(1.9, -81, 0)),
    Part.LineSegment(V(1.9, -81, 0), V(1.9, -61, 0)),
    Part.LineSegment(V(1.9, -61, 0), V(-1.9, -61, 0)),
], False)
sketch9.addConstraint([
    Sketcher.Constraint("Coincident", 0, 2, 1, 1),
    Sketcher.Constraint("Coincident", 1, 2, 2, 1),
    Sketcher.Constraint("Coincident", 2, 2, 3, 1),
    Sketcher.Constraint("Coincident", 3, 2, 0, 1),
    Sketcher.Constraint("Vertical", 0),
    Sketcher.Constraint("Horizontal", 1),
    Sketcher.Constraint("Vertical", 2),
    Sketcher.Constraint("Horizontal", 3),
    Sketcher.Constraint("DistanceY", 0, 2, 0, 1, Q("20 mm")),
    Sketcher.Constraint("DistanceX", 1, 1, 1, 2, Q("3.8 mm")),
    Sketcher.Constraint("DistanceY", 0, 2, -1, 1, Q("81 mm")),
    Sketcher.Constraint("DistanceX", 0, 2, -1, 1, Q("1.9 mm")),
])
pocket4 = body.newObject("PartDesign::Pocket", "Pocket003")
pocket4.Profile = sketch9
pocket4.Type = "ThroughAll"
pocket4.Midplane = True

# Sketch on XZ plane
sketch10 = body.newObject("Sketcher::SketchObject", "Sketch009")
sketch10.AttachmentSupport = (doc.getObject("XZ_Plane"), [""])
sketch10.MapMode = "FlatFace"
sketch10.addGeometry([
    Part.LineSegment(V(5, -8, 0), V(-5, -8, 0)),  # 0
    Part.LineSegment(V(-5, -8, 0), V(-45, -48, 0)),  # 1
    Part.LineSegment(V(-45, -48, 0), V(-45, -56, 0)),  # 2
    Part.LineSegment(V(-45, -56, 0), V(45, -56, 0)),  # 3
    Part.LineSegment(V(45, -56, 0), V(45, -48, 0)),  # 4
    Part.LineSegment(V(45, -48, 0), V(5, -8, 0)),  # 5
], False)
sketch10.addConstraint([
    Sketcher.Constraint("Coincident", 0, 2, 1, 1),
    Sketcher.Constraint("Coincident", 1, 2, 2, 1),
    Sketcher.Constraint("Coincident", 2, 2, 3, 1),
    Sketcher.Constraint("Coincident", 3, 2, 4, 1),
    Sketcher.Constraint("Coincident", 4, 2, 5, 1),
    Sketcher.Constraint("Coincident", 5, 2, 0, 1),
    Sketcher.Constraint("Horizontal", 0),
    Sketcher.Constraint("Vertical", 2),
    Sketcher.Constraint("Horizontal", 3),
    Sketcher.Constraint("Vertical", 4),
    Sketcher.Constraint("Symmetric", 1, 2, 4, 2, -2),
    Sketcher.Constraint("Perpendicular", 1, 5),
    Sketcher.Constraint("Equal", 1, 5),
    Sketcher.Constraint("DistanceX", 3, 1, 3, 2, Q("90 mm")),
    Sketcher.Constraint("DistanceY", 2, 2, 2, 1, Q("8 mm")),
    Sketcher.Constraint("DistanceY", 1, 2, -1, 1, Q("48 mm")),
    Sketcher.Constraint("Distance", 1, Q("56.367532 mm")),
])
pocket5 = body.newObject("PartDesign::Pocket", "Pocket004")
pocket5.Profile = sketch10
pocket5.Type = "ThroughAll"
pocket5.Midplane = True

doc.recompute()
